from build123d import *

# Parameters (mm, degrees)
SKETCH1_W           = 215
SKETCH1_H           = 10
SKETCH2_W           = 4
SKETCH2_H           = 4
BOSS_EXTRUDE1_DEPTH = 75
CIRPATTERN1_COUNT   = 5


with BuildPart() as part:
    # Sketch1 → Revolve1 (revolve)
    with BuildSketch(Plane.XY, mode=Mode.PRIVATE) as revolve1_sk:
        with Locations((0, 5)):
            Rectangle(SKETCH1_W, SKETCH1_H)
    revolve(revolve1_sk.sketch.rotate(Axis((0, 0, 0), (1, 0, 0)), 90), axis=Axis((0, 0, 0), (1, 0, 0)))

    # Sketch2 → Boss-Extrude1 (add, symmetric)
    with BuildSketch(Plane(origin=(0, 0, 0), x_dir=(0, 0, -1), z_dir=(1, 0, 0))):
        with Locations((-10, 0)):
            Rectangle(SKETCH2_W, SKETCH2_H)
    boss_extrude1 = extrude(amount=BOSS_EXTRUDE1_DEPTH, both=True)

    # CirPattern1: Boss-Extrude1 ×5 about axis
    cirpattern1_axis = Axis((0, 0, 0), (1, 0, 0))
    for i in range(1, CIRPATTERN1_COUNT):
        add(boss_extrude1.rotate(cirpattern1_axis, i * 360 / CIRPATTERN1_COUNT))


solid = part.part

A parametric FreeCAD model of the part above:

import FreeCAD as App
import Part
import Sketcher

V = App.Vector
Q = App.Units.Quantity


def add_polygon(sketch, points):
    """Adds a closed chain of lines whose ends are joined by coincident constraints."""
    first, n = sketch.GeometryCount, len(points)
    for a, b in zip(points, points[1:] + points[:1]):
        sketch.addGeometry(Part.LineSegment(App.Vector(*a, 0), App.Vector(*b, 0)), False)
    for i in range(n):
        sketch.addConstraint(Sketcher.Constraint("Coincident", first + i, 2, first + (i + 1) % n, 1))

doc = App.newDocument("Part")
body = doc.addObject("PartDesign::Body", "Body")

sketch1 = body.newObject("Sketcher::SketchObject", "Sketch")
sketch1.AttachmentSupport = (doc.getObject("XY_Plane"), [""])
sketch1.MapMode = "FlatFace"
add_polygon(sketch1, [(-108, 10), (-108, 0), (108, 0), (108, 10)])
sketch1.addConstraint(Sketcher.Constraint("Vertical", 0))
sketch1.addConstraint(Sketcher.Constraint("Horizontal", 1))
sketch1.addConstraint(Sketcher.Constraint("Vertical", 2))
sketch1.addConstraint(Sketcher.Constraint("Horizontal", 3))
sketch1.addConstraint(Sketcher.Constraint("Symmetric", 0, 2, 1, 2, -1, 1))
sketch1.addConstraint(Sketcher.Constraint("DistanceX", 1, 1, 1, 2, Q("215 mm")))
sketch1.addConstraint(Sketcher.Constraint("DistanceY", 0, 2, 0, 1, Q("10 mm")))
revolution = body.newObject("PartDesign::Revolution", "Revolution")
revolution.Profile = sketch1
revolution.ReferenceAxis = (sketch1, ["H_Axis"])
revolution.Angle = 360

sketch2 = body.newObject("Sketcher::SketchObject", "Sketch001")
sketch2.AttachmentSupport = (doc.getObject("YZ_Plane"), [""])
sketch2.MapMode = "FlatFace"
add_polygon(sketch2, [(2, 12), (-2, 12), (-2, 8), (2, 8)])
sketch2.addConstraint(Sketcher.Constraint("Horizontal", 0))
sketch2.addConstraint(Sketcher.Constraint("Vertical", 1))
sketch2.addConstraint(Sketcher.Constraint("Horizontal", 2))
sketch2.addConstraint(Sketcher.Constraint("Vertical", 3))
sketch2.addConstraint(Sketcher.Constraint("Equal", 2, 1))
sketch2.addConstraint(Sketcher.Constraint("DistanceX", 0, 2, 0, 1, Q("4 mm")))
sketch2.addConstraint(Sketcher.Constraint("DistanceX", 0, 2, -1, 1, Q("2 mm")))
sketch2.addConstraint(Sketcher.Constraint("DistanceY", -1, 1, 0, 2, Q("12 mm")))
pad1 = body.newObject("PartDesign::Pad", "Pad")
pad1.Profile = sketch2
pad1.Length = 150
pad1.Midplane = True
doc.recompute()

polarpattern = body.newObject("PartDesign::PolarPattern", "PolarPattern")
polarpattern.Originals = [pad1]
polarpattern.Axis = (doc.getObject("X_Axis"), [""])
polarpattern.Angle = 360
polarpattern.Occurrences = 5
body.Tip = polarpattern

doc.recompute()
